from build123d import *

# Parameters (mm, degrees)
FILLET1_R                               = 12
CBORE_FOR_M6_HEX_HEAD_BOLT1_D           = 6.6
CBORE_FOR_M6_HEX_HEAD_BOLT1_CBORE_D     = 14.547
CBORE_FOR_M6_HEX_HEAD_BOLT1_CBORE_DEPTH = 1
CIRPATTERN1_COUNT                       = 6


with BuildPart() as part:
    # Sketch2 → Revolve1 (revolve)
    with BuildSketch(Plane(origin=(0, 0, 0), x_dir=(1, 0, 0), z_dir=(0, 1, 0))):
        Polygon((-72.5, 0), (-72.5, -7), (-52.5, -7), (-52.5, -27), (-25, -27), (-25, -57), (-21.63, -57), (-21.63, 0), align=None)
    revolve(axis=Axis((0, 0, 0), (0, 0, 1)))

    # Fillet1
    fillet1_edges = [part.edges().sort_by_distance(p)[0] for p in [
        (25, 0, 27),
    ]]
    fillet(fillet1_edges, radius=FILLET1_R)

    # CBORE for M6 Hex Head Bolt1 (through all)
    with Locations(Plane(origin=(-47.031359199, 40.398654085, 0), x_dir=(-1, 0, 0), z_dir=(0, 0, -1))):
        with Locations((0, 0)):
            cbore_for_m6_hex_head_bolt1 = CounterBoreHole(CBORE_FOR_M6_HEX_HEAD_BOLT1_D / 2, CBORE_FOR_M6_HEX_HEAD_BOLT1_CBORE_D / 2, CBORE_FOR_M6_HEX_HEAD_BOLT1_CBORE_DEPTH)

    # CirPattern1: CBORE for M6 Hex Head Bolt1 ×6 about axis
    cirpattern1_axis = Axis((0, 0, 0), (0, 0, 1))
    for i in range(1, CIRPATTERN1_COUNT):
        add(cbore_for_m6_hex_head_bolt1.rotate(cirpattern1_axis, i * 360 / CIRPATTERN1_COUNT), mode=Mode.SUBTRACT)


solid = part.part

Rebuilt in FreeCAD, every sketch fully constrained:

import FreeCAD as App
import Part
import Sketcher
Q = App.Units.Quantity


def edges_at(feature, points):
    """Names of the edges that pass closest to the given points."""
    edges = feature.Shape.Edges
    near = lambda p: min(range(len(edges)), key=lambda i: edges[i].distToShape(Part.Vertex(*p))[0])
    return sorted({f"Edge{near(p) + 1}" for p in points})


def add_polygon(sketch, points):
    """Adds a closed chain of lines whose ends are joined by coincident constraints."""
    first, n = sketch.GeometryCount, len(points)
    for a, b in zip(points, points[1:] + points[:1]):
        sketch.addGeometry(Part.LineSegment(App.Vector(*a, 0), App.Vector(*b, 0)), False)
    for i in range(n):
        sketch.addConstraint(Sketcher.Constraint("Coincident", first + i, 2, first + (i + 1) % n, 1))

doc = App.newDocument("Part")
body = doc.addObject("PartDesign::Body", "Body")

# Sketch on XZ plane
sketch1 = body.newObject("Sketcher::SketchObject", "Sketch")
sketch1.AttachmentSupport = (doc.getObject("XZ_Plane"), [""])
sketch1.MapMode = "FlatFace"
add_polygon(sketch1, [(-72.5, 0), (-72.5, 7), (-52.5, 7), (-52.5, 27), (-25, 27), (-25, 57), (-21.6, 57), (-21.6, 0)])  # lines 0-7
sketch1.addConstraint(Sketcher.Constraint("Vertical", 0))
sketch1.addConstraint(Sketcher.Constraint("Horizontal", 1))
sketch1.addConstraint(Sketcher.Constraint("Vertical", 2))
sketch1.addConstraint(Sketcher.Constraint("Horizontal", 3))
sketch1.addConstraint(Sketcher.Constraint("Vertical", 4))
sketch1.addConstraint(Sketcher.Constraint("Horizontal", 5))
sketch1.addConstraint(Sketcher.Constraint("Vertical", 6))
sketch1.addConstraint(Sketcher.Constraint("Horizontal", 7))
sketch1.addConstraint(Sketcher.Constraint("PointOnObject", 6, 2, -1))
sketch1.addConstraint(Sketcher.Constraint("Equal", 1, 2))
sketch1.addConstraint(Sketcher.Constraint("DistanceX", 1, 1, 1, 2, Q("20 mm")))
sketch1.addConstraint(Sketcher.Constraint("DistanceY", 0, 1, 0, 2, Q("7 mm")))
sketch1.addConstraint(Sketcher.Constraint("DistanceY", 4, 1, 4, 2, Q("30 mm")))
sketch1.addConstraint(Sketcher.Constraint("DistanceX", 3, 1, 3, 2, Q("27.5 mm")))
sketch1.addConstraint(Sketcher.Constraint("DistanceX", 3, 2, -1, 1, Q("25 mm")))
sketch1.addConstraint(Sketcher.Constraint("DistanceX", 5, 1, 5, 2, Q("3.37 mm")))
revolution = body.newObject("PartDesign::Revolution", "Revolution")
revolution.Profile = sketch1
revolution.ReferenceAxis = (sketch1, ["V_Axis"])
revolution.Angle = 360
doc.recompute()

fillet = body.newObject("PartDesign::Fillet", "Fillet")
fillet.Base = (revolution, edges_at(revolution, [(25, 0, 27)]))
fillet.Radius = 12

# Sketch on XY plane
sketch2 = body.newObject("Sketcher::SketchObject", "Sketch001")
sketch2.AttachmentSupport = (doc.getObject("XY_Plane"), [""])
sketch2.MapMode = "FlatFace"
sketch2.addGeometry(Part.Circle(App.Vector(-47, 40.4, 0), App.Vector(0, 0, 1), 3.3), False)
sketch2.addConstraint(Sketcher.Constraint("Diameter", 0, Q("6.6 mm")))
sketch2.addConstraint(Sketcher.Constraint("DistanceX", 0, 3, -1, 1, Q("47.031359 mm")))
sketch2.addConstraint(Sketcher.Constraint("DistanceY", -1, 1, 0, 3, Q("40.398654 mm")))
doc.recompute()
hole = body.newObject("PartDesign::Hole", "Hole")
hole.Profile = sketch2
hole.ThreadType = "None"
hole.Diameter = 6.6
hole.DepthType = "ThroughAll"
hole.HoleCutType = "Counterbore"
hole.HoleCutDiameter = 14.547
hole.HoleCutDepth = 1
hole.Reversed = True
doc.recompute()

polarpattern = body.newObject("PartDesign::PolarPattern", "PolarPattern")
polarpattern.Originals = [hole]
polarpattern.Axis = (doc.getObject("Z_Axis"), [""])
polarpattern.Angle = 360
polarpattern.Occurrences = 6
body.Tip = polarpattern

doc.recompute()
